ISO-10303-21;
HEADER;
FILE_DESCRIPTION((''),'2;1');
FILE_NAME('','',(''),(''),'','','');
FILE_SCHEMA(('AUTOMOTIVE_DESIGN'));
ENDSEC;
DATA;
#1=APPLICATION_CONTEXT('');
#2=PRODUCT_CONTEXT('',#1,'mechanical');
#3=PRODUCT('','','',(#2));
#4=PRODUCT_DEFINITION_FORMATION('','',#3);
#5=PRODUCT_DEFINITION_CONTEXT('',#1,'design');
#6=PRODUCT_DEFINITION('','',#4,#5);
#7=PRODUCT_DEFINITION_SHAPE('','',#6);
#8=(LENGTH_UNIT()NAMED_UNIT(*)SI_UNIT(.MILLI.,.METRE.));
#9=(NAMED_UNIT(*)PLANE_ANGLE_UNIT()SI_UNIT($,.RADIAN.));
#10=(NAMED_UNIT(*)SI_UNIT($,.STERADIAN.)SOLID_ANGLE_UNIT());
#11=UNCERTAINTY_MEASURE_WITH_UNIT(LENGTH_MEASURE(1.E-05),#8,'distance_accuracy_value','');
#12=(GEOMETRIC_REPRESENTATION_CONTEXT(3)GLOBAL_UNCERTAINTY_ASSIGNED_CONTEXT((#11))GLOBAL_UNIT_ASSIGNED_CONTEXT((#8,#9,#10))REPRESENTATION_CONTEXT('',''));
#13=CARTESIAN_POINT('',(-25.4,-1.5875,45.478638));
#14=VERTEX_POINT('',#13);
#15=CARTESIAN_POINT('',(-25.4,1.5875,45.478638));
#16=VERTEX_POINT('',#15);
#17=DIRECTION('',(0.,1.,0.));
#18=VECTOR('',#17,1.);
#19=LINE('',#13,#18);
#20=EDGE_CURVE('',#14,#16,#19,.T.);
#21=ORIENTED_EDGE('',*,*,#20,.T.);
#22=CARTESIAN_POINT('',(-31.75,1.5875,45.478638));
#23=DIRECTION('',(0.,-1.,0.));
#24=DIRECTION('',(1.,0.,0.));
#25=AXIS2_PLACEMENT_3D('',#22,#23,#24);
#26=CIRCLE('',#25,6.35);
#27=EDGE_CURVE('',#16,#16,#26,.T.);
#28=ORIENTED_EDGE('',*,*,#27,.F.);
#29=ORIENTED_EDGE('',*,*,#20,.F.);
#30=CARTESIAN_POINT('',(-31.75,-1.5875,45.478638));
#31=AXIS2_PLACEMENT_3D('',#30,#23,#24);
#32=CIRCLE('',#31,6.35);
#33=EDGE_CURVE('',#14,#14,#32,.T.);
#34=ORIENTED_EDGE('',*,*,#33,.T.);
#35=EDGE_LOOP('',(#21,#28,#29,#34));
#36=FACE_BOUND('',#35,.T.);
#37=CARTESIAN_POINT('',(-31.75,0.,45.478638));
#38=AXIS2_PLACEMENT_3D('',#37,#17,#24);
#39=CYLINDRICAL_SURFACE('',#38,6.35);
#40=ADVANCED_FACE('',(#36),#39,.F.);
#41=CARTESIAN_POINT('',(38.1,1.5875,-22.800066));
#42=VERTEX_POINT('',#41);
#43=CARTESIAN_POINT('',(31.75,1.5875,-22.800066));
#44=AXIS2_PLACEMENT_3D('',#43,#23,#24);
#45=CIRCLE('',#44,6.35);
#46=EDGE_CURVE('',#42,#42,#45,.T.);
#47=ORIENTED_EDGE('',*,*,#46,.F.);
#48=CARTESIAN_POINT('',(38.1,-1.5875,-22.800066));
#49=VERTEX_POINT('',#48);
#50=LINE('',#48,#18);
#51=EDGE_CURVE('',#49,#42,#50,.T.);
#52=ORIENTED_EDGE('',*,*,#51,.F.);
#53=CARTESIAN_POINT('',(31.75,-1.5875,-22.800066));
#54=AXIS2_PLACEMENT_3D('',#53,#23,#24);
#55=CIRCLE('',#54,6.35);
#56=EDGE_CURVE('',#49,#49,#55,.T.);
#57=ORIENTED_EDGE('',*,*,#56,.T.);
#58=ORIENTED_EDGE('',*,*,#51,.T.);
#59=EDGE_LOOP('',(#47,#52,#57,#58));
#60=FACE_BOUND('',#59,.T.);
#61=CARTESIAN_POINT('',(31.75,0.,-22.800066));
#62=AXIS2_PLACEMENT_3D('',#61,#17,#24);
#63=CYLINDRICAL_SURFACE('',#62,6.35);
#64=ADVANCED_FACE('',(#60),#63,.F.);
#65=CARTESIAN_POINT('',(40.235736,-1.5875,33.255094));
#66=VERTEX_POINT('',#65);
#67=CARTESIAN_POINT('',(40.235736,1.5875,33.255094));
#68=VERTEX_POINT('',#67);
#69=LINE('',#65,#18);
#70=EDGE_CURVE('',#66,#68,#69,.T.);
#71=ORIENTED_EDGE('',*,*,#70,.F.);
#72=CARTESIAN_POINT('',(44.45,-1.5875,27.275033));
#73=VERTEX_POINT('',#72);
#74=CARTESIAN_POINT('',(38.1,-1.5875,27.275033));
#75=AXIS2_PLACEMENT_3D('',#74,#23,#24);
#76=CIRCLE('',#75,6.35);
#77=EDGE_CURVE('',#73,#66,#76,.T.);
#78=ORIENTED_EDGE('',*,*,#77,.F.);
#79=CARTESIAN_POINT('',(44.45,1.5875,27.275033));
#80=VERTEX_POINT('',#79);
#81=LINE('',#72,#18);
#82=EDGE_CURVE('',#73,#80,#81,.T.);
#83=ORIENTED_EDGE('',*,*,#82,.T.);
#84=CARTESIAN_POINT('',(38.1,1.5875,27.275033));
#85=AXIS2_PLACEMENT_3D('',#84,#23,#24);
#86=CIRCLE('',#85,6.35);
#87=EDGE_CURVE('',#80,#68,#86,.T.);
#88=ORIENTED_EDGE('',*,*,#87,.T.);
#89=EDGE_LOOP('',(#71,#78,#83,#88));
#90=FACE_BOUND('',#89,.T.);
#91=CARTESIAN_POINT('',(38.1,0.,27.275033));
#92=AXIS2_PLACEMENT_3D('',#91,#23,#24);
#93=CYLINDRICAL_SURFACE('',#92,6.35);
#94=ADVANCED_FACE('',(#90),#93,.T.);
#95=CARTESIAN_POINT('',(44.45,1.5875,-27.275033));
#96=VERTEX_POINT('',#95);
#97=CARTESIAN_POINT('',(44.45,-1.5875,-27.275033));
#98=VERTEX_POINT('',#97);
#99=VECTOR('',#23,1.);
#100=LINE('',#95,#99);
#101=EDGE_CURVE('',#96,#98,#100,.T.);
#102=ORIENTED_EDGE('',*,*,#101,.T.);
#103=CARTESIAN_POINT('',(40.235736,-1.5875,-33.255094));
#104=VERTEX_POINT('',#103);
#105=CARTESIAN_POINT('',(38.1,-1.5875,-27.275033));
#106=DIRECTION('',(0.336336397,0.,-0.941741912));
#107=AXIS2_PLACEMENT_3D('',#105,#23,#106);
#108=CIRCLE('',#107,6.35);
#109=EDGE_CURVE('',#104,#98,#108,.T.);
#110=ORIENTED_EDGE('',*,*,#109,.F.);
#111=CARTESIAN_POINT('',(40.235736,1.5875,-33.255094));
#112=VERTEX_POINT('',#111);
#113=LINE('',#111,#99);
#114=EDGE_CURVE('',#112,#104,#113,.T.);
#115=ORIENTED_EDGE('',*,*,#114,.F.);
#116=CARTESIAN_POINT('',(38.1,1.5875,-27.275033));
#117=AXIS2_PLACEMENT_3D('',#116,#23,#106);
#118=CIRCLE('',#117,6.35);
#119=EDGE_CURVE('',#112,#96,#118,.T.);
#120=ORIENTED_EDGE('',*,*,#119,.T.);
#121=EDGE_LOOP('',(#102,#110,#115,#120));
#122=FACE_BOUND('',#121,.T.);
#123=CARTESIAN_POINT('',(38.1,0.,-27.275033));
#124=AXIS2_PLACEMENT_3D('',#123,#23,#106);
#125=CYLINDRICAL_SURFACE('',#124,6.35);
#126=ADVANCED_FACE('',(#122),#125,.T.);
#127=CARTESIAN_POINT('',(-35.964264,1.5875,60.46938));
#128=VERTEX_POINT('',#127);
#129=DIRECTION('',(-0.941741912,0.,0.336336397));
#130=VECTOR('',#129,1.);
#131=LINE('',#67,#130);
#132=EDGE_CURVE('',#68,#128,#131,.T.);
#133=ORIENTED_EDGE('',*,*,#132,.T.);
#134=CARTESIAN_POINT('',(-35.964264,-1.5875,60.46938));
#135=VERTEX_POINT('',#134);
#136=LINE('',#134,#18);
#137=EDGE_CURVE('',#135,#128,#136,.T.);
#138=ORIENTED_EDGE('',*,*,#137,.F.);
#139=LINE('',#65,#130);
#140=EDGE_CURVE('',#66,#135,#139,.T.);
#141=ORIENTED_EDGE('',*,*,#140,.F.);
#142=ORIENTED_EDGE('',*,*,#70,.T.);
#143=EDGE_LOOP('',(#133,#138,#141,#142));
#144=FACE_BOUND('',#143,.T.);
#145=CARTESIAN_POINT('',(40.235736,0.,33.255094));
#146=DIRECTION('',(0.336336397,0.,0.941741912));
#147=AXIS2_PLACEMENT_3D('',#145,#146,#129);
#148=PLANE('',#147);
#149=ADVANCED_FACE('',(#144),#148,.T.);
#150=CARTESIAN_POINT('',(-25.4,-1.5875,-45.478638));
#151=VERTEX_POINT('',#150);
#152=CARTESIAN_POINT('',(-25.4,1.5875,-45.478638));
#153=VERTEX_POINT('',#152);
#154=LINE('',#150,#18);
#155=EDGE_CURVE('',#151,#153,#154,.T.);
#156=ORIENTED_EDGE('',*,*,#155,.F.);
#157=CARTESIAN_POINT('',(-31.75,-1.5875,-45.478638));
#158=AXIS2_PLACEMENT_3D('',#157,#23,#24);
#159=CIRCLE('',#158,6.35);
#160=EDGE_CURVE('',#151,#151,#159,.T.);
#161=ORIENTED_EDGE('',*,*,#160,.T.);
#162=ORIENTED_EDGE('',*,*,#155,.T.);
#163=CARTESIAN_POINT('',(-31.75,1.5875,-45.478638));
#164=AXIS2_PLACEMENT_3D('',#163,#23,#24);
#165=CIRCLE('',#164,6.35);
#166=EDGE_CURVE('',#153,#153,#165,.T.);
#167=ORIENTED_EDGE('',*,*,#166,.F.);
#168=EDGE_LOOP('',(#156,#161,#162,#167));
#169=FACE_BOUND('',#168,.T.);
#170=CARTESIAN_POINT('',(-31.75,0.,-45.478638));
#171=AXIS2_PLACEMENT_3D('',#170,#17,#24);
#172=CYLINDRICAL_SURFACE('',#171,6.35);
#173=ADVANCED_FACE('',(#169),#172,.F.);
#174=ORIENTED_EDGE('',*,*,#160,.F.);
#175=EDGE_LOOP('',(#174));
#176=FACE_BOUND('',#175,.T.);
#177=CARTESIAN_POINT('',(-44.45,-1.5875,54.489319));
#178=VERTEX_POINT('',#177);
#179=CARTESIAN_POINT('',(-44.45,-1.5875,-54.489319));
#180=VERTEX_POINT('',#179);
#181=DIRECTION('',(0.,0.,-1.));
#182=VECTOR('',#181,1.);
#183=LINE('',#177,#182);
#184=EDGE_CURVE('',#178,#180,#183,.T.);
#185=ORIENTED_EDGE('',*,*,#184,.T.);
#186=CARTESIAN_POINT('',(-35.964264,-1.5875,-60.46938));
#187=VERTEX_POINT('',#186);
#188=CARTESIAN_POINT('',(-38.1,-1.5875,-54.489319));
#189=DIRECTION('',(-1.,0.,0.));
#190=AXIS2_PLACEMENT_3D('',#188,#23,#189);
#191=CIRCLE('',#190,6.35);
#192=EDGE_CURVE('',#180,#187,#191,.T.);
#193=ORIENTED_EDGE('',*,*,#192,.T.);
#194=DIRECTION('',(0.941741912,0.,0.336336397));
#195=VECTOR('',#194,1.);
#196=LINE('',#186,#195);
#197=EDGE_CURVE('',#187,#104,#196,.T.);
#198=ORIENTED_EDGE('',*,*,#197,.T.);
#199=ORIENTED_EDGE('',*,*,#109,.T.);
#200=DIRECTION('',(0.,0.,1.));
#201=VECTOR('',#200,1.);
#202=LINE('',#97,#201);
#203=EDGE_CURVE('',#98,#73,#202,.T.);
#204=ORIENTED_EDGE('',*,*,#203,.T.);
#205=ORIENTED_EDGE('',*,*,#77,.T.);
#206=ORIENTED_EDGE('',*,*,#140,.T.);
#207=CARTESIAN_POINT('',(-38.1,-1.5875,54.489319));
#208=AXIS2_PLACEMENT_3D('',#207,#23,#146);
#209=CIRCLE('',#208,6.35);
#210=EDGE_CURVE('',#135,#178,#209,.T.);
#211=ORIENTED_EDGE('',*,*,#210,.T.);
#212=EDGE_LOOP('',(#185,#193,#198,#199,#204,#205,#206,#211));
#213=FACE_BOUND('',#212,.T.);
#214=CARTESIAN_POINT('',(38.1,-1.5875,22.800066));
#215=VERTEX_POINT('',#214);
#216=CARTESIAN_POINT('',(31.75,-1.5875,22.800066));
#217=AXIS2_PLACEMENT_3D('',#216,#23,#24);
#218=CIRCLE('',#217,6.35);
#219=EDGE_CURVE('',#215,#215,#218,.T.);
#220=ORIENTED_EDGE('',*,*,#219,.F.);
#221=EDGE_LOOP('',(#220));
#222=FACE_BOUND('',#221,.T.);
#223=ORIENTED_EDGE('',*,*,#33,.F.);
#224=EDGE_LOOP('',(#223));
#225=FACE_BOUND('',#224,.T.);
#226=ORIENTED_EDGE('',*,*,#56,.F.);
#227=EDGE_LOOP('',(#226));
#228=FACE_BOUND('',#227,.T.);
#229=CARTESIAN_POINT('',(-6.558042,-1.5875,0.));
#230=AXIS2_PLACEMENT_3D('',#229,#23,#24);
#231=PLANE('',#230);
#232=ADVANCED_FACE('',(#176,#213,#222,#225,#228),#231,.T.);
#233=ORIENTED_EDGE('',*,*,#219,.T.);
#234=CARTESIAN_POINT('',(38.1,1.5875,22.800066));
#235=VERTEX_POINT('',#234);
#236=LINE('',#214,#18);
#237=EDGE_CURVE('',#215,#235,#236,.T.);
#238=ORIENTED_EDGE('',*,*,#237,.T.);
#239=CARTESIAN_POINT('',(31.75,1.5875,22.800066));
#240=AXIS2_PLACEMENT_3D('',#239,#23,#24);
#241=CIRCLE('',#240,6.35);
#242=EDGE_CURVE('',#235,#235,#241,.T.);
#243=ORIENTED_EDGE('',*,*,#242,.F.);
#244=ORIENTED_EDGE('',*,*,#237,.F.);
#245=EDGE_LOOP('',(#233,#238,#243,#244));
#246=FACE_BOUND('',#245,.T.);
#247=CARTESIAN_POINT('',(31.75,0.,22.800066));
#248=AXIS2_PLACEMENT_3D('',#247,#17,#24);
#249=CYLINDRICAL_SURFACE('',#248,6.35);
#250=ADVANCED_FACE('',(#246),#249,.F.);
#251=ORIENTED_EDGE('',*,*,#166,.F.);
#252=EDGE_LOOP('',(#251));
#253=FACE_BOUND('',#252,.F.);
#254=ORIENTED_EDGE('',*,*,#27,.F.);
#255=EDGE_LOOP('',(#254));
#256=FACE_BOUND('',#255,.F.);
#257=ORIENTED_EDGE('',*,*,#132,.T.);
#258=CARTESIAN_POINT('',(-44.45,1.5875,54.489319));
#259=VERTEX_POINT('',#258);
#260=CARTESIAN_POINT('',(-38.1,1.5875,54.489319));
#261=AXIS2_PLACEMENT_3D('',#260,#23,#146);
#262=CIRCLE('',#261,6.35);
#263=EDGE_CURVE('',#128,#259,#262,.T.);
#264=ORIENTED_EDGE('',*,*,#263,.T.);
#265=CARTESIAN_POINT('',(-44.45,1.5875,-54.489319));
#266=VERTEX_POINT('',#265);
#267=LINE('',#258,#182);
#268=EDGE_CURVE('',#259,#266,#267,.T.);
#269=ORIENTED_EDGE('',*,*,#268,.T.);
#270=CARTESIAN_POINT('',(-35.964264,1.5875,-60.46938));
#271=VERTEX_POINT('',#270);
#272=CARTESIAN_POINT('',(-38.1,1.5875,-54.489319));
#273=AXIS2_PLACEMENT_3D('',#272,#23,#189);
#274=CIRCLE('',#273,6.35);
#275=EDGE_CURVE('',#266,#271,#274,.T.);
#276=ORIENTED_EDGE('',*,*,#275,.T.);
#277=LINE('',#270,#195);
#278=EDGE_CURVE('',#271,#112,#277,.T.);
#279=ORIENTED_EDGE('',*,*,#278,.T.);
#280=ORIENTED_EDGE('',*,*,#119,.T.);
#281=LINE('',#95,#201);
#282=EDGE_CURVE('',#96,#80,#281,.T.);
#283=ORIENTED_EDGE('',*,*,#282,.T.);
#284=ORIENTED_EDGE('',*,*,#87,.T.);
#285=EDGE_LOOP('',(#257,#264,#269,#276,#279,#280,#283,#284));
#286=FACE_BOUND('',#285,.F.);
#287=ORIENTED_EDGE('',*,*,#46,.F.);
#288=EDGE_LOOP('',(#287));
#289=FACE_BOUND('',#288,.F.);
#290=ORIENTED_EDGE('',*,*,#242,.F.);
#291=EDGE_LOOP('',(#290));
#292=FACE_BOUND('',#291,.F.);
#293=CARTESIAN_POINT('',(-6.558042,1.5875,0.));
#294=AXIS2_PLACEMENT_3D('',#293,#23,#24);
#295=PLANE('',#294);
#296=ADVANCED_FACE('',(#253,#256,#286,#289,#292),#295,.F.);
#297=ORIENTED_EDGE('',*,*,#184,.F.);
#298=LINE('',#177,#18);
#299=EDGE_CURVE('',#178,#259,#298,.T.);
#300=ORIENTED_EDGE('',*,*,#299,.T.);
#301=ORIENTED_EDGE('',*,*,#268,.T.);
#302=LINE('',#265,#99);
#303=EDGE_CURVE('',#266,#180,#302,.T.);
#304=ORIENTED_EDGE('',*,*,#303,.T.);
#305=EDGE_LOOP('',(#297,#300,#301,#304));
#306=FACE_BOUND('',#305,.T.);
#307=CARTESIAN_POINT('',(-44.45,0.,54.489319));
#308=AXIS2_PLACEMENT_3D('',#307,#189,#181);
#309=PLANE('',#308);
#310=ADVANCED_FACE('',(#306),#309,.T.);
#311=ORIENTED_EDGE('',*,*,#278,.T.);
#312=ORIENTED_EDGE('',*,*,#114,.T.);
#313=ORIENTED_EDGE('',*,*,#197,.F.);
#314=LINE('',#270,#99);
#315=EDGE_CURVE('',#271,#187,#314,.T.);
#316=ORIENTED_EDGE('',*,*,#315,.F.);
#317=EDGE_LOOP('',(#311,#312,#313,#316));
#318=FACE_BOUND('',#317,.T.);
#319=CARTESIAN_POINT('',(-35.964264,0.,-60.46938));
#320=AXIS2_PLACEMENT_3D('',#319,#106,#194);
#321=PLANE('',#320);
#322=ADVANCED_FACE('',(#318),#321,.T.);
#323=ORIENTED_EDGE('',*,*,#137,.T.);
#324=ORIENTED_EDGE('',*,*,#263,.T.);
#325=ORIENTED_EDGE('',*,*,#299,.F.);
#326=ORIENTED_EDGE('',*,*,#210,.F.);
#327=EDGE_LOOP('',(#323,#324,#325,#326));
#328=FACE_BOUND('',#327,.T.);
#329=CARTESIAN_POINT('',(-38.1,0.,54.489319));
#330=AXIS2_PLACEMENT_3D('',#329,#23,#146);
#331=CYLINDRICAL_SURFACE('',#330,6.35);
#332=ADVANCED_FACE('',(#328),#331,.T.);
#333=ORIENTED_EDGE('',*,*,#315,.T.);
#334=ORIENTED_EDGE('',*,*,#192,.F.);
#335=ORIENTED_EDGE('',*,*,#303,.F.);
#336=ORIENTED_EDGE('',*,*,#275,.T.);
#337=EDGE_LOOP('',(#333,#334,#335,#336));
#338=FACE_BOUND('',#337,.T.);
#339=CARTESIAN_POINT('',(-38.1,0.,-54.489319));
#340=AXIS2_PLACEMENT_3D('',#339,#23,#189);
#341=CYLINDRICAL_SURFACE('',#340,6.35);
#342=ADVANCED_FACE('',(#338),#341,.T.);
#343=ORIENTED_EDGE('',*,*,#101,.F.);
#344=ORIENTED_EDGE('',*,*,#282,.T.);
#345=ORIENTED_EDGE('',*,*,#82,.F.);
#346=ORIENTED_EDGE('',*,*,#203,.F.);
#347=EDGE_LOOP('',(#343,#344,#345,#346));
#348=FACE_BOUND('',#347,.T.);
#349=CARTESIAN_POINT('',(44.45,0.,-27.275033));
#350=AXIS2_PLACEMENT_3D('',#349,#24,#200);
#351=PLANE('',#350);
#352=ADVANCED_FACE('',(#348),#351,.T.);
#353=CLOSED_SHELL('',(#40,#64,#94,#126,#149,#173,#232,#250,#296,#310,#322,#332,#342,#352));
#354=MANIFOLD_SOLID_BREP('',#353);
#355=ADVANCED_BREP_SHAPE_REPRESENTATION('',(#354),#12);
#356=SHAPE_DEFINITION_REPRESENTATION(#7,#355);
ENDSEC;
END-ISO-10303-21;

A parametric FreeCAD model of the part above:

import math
import FreeCAD as App
import Part
import Sketcher
from FreeCAD import Vector
Q = App.Units.Quantity

doc = App.newDocument("Part")
params = doc.addObject("Spreadsheet::Sheet", "Params")
for row, (alias, value) in enumerate([
    ("sketch1_diameter", "0.5 in"),
    ("pad1_length", "0.125 in"),
], start=1):
    params.set(f"A{row}", alias)
    params.set(f"B{row}", "=" + value)
    params.setAlias(f"B{row}", alias)

body = doc.addObject("PartDesign::Body", "Body")

# Sketch on XZ plane
sketch1 = body.newObject("Sketcher::SketchObject", "Sketch")
sketch1.AttachmentSupport = (doc.getObject("XZ_Plane"), [""])
sketch1.MapMode = "FlatFace"
sketch1.addGeometry([
    Part.LineSegment(Vector(-44, 54, 0), Vector(-44, -54, 0)),  # 0
    Part.ArcOfCircle(Part.Circle(Vector(-38, -54, 0), Vector(0, 0, 1), 6), math.radians(180), math.radians(290)),  # 1
    Part.LineSegment(Vector(-36, -60, 0), Vector(40, -33, 0)),  # 2
    Part.ArcOfCircle(Part.Circle(Vector(38, -27, 0), Vector(0, 0, 1), 6), math.radians(-70), math.radians(0)),  # 3
    Part.LineSegment(Vector(44, -27, 0), Vector(44, 27, 0)),  # 4
    Part.ArcOfCircle(Part.Circle(Vector(38, 27, 0), Vector(0, 0, 1), 6), math.radians(0), math.radians(70)),  # 5
    Part.LineSegment(Vector(40, 33, 0), Vector(-36, 60, 0)),  # 6
    Part.ArcOfCircle(Part.Circle(Vector(-38, 54, 0), Vector(0, 0, 1), 6), math.radians(70), math.radians(180)),  # 7
    Part.Circle(Vector(-32, -45, 0), Vector(0, 0, 1), 6),  # 8
    Part.Circle(Vector(32, -23, 0), Vector(0, 0, 1), 6),  # 9
    Part.Circle(Vector(-32, 45, 0), Vector(0, 0, 1), 6),  # 10
    Part.Circle(Vector(32, 23, 0), Vector(0, 0, 1), 6),  # 11
], False)
sketch1.addConstraint([
    Sketcher.Constraint("Tangent", 0, 2, 1, 1),
    Sketcher.Constraint("Tangent", 1, 2, 2, 1),
    Sketcher.Constraint("Tangent", 2, 2, 3, 1),
    Sketcher.Constraint("Tangent", 3, 2, 4, 1),
    Sketcher.Constraint("Tangent", 4, 2, 5, 1),
    Sketcher.Constraint("Tangent", 5, 2, 6, 1),
    Sketcher.Constraint("Tangent", 6, 2, 7, 1),
    Sketcher.Constraint("Tangent", 7, 2, 0, 1),
    Sketcher.Constraint("Vertical", 0),
    Sketcher.Constraint("Vertical", 4),
    Sketcher.Constraint("Equal", 1, 3),
    Sketcher.Constraint("Equal", 3, 5),
    Sketcher.Constraint("Equal", 5, 7),
    Sketcher.Constraint("Equal", 7, 8),
    Sketcher.Constraint("Equal", 8, 9),
    Sketcher.Constraint("Equal", 9, 10),
    Sketcher.Constraint("Equal", 10, 11),
    Sketcher.Constraint("Symmetric", 8, 3, 10, 3, -1),
    Sketcher.Constraint("Symmetric", 9, 3, 11, 3, -1),
    Sketcher.Constraint("Symmetric", 2, 2, 5, 2, -1),
    Sketcher.Constraint("Diameter", 8, Q("0.5 in")),
    Sketcher.Constraint("DistanceX", 1, 3, 3, 3, Q("3 in")),
    Sketcher.Constraint("DistanceX", 0, 2, 9, 3, Q("3 in")),
    Sketcher.Constraint("DistanceX", 1, 3, -1, 1, Q("1.5 in")),
    Sketcher.Constraint("DistanceX", 8, 3, 9, 3, Q("2.5 in")),
    Sketcher.Constraint("DistanceY", 9, 3, 5, 3, Q("50.075099 mm")),
    Sketcher.Constraint("Distance", 2, Q("80.913888 mm")),
    Sketcher.Constraint("DistanceY", 0, 2, 0, 1, Q("108.978638 mm")),
    Sketcher.Constraint("DistanceY", 1, 3, 8, 3, Q("9.010681 mm")),
])
sketch1.setExpression("Constraints[20]", "Params.sketch1_diameter")
pad1 = body.newObject("PartDesign::Pad", "Pad")
pad1.Profile = sketch1
pad1.setExpression("Length", "Params.pad1_length")
pad1.Midplane = True

doc.recompute()
